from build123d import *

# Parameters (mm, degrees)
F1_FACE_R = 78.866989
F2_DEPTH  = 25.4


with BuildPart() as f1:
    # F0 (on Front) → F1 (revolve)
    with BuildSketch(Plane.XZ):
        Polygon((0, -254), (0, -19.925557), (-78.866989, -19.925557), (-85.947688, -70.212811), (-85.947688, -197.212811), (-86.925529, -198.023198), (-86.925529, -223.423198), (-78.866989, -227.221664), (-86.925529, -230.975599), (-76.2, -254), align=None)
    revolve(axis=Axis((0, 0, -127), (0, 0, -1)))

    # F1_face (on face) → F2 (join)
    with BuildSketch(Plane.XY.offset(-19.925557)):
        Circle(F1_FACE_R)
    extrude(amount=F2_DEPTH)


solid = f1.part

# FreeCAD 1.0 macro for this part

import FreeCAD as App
import Part
import Sketcher
Q = App.Units.Quantity

doc = App.newDocument("Part")
body = doc.addObject("PartDesign::Body", "Body")

sketch1 = body.newObject("Sketcher::SketchObject", "Sketch")
sketch1.AttachmentSupport = (doc.getObject("XZ_Plane"), [""])
sketch1.MapMode = "FlatFace"
sketch1.addGeometry([
    Part.LineSegment(App.Vector(0, -254, 0), App.Vector(0, -19.9, 0)),
    Part.LineSegment(App.Vector(0, -19.9, 0), App.Vector(-78.9, -19.9, 0)),
    Part.LineSegment(App.Vector(-78.9, -19.9, 0), App.Vector(-85.9, -70.2, 0)),
    Part.LineSegment(App.Vector(-85.9, -70.2, 0), App.Vector(-85.9, -197.2, 0)),
    Part.LineSegment(App.Vector(-85.9, -197.2, 0), App.Vector(-86.9, -198, 0)),
    Part.LineSegment(App.Vector(-86.9, -198, 0), App.Vector(-86.9, -223.4, 0)),
    Part.LineSegment(App.Vector(-86.9, -223.4, 0), App.Vector(-78.9, -227.2, 0)),
    Part.LineSegment(App.Vector(-78.9, -227.2, 0), App.Vector(-86.9, -231, 0)),
    Part.LineSegment(App.Vector(-86.9, -231, 0), App.Vector(-76.2, -254, 0)),
    Part.LineSegment(App.Vector(-76.2, -254, 0), App.Vector(0, -254, 0)),
], False)
sketch1.addConstraint([
    Sketcher.Constraint("Coincident", 0, 2, 1, 1),
    Sketcher.Constraint("Coincident", 1, 2, 2, 1),
    Sketcher.Constraint("Coincident", 2, 2, 3, 1),
    Sketcher.Constraint("Coincident", 3, 2, 4, 1),
    Sketcher.Constraint("Coincident", 4, 2, 5, 1),
    Sketcher.Constraint("Coincident", 5, 2, 6, 1),
    Sketcher.Constraint("Coincident", 6, 2, 7, 1),
    Sketcher.Constraint("Coincident", 7, 2, 8, 1),
    Sketcher.Constraint("Coincident", 8, 2, 9, 1),
    Sketcher.Constraint("Coincident", 9, 2, 0, 1),
    Sketcher.Constraint("Vertical", 0),
    Sketcher.Constraint("Horizontal", 1),
    Sketcher.Constraint("Vertical", 3),
    Sketcher.Constraint("Vertical", 5),
    Sketcher.Constraint("Horizontal", 9),
    Sketcher.Constraint("PointOnObject", 0, 2, -2),
    Sketcher.Constraint("Perpendicular", 7, 8),
    Sketcher.Constraint("Vertical", 1, 2, 6, 2),
    Sketcher.Constraint("Vertical", 5, 2, 7, 2),
    Sketcher.Constraint("DistanceX", 9, 1, 9, 2, Q("3 in")),
    Sketcher.Constraint("DistanceY", 3, 2, 3, 1, Q("5 in")),
    Sketcher.Constraint("DistanceY", 5, 2, 5, 1, Q("1 in")),
    Sketcher.Constraint("Distance", 8, Q("1 in")),
    Sketcher.Constraint("DistanceY", 8, 2, -1, 1, Q("10 in")),
    Sketcher.Constraint("Distance", 4, Q("0.05 in")),
    Sketcher.Constraint("Distance", 7, Q("0.35 in")),
    Sketcher.Constraint("DistanceX", 1, 2, 1, 1, Q("78.866989 mm")),
    Sketcher.Constraint("DistanceY", 4, 2, -1, 1, Q("198.023198 mm")),
    Sketcher.Constraint("DistanceX", 2, 2, 1, 2, Q("7.080699 mm")),
    Sketcher.Constraint("DistanceY", 0, 1, 0, 2, Q("234.074443 mm")),
])
revolution = body.newObject("PartDesign::Revolution", "Revolution")
revolution.Profile = sketch1
revolution.ReferenceAxis = (sketch1, ["V_Axis"])
revolution.Angle = 360

sketch2 = body.newObject("Sketcher::SketchObject", "Sketch001")
sketch2.AttachmentSupport = (doc.getObject("XY_Plane"), [""])
sketch2.MapMode = "FlatFace"
sketch2.AttachmentOffset = App.Placement(App.Vector(0, 0, -19.925557), App.Rotation())
sketch2.addGeometry(Part.Circle(App.Vector(0, 0, 0), App.Vector(0, 0, 1), 79), False)
sketch2.addConstraint([
    Sketcher.Constraint("Coincident", 0, 3, -1, 1),
    Sketcher.Constraint("Diameter", 0, Q("157.733978 mm")),
])
pad1 = body.newObject("PartDesign::Pad", "Pad")
pad1.Profile = sketch2
pad1.Length = Q("1 in")

doc.recompute()
